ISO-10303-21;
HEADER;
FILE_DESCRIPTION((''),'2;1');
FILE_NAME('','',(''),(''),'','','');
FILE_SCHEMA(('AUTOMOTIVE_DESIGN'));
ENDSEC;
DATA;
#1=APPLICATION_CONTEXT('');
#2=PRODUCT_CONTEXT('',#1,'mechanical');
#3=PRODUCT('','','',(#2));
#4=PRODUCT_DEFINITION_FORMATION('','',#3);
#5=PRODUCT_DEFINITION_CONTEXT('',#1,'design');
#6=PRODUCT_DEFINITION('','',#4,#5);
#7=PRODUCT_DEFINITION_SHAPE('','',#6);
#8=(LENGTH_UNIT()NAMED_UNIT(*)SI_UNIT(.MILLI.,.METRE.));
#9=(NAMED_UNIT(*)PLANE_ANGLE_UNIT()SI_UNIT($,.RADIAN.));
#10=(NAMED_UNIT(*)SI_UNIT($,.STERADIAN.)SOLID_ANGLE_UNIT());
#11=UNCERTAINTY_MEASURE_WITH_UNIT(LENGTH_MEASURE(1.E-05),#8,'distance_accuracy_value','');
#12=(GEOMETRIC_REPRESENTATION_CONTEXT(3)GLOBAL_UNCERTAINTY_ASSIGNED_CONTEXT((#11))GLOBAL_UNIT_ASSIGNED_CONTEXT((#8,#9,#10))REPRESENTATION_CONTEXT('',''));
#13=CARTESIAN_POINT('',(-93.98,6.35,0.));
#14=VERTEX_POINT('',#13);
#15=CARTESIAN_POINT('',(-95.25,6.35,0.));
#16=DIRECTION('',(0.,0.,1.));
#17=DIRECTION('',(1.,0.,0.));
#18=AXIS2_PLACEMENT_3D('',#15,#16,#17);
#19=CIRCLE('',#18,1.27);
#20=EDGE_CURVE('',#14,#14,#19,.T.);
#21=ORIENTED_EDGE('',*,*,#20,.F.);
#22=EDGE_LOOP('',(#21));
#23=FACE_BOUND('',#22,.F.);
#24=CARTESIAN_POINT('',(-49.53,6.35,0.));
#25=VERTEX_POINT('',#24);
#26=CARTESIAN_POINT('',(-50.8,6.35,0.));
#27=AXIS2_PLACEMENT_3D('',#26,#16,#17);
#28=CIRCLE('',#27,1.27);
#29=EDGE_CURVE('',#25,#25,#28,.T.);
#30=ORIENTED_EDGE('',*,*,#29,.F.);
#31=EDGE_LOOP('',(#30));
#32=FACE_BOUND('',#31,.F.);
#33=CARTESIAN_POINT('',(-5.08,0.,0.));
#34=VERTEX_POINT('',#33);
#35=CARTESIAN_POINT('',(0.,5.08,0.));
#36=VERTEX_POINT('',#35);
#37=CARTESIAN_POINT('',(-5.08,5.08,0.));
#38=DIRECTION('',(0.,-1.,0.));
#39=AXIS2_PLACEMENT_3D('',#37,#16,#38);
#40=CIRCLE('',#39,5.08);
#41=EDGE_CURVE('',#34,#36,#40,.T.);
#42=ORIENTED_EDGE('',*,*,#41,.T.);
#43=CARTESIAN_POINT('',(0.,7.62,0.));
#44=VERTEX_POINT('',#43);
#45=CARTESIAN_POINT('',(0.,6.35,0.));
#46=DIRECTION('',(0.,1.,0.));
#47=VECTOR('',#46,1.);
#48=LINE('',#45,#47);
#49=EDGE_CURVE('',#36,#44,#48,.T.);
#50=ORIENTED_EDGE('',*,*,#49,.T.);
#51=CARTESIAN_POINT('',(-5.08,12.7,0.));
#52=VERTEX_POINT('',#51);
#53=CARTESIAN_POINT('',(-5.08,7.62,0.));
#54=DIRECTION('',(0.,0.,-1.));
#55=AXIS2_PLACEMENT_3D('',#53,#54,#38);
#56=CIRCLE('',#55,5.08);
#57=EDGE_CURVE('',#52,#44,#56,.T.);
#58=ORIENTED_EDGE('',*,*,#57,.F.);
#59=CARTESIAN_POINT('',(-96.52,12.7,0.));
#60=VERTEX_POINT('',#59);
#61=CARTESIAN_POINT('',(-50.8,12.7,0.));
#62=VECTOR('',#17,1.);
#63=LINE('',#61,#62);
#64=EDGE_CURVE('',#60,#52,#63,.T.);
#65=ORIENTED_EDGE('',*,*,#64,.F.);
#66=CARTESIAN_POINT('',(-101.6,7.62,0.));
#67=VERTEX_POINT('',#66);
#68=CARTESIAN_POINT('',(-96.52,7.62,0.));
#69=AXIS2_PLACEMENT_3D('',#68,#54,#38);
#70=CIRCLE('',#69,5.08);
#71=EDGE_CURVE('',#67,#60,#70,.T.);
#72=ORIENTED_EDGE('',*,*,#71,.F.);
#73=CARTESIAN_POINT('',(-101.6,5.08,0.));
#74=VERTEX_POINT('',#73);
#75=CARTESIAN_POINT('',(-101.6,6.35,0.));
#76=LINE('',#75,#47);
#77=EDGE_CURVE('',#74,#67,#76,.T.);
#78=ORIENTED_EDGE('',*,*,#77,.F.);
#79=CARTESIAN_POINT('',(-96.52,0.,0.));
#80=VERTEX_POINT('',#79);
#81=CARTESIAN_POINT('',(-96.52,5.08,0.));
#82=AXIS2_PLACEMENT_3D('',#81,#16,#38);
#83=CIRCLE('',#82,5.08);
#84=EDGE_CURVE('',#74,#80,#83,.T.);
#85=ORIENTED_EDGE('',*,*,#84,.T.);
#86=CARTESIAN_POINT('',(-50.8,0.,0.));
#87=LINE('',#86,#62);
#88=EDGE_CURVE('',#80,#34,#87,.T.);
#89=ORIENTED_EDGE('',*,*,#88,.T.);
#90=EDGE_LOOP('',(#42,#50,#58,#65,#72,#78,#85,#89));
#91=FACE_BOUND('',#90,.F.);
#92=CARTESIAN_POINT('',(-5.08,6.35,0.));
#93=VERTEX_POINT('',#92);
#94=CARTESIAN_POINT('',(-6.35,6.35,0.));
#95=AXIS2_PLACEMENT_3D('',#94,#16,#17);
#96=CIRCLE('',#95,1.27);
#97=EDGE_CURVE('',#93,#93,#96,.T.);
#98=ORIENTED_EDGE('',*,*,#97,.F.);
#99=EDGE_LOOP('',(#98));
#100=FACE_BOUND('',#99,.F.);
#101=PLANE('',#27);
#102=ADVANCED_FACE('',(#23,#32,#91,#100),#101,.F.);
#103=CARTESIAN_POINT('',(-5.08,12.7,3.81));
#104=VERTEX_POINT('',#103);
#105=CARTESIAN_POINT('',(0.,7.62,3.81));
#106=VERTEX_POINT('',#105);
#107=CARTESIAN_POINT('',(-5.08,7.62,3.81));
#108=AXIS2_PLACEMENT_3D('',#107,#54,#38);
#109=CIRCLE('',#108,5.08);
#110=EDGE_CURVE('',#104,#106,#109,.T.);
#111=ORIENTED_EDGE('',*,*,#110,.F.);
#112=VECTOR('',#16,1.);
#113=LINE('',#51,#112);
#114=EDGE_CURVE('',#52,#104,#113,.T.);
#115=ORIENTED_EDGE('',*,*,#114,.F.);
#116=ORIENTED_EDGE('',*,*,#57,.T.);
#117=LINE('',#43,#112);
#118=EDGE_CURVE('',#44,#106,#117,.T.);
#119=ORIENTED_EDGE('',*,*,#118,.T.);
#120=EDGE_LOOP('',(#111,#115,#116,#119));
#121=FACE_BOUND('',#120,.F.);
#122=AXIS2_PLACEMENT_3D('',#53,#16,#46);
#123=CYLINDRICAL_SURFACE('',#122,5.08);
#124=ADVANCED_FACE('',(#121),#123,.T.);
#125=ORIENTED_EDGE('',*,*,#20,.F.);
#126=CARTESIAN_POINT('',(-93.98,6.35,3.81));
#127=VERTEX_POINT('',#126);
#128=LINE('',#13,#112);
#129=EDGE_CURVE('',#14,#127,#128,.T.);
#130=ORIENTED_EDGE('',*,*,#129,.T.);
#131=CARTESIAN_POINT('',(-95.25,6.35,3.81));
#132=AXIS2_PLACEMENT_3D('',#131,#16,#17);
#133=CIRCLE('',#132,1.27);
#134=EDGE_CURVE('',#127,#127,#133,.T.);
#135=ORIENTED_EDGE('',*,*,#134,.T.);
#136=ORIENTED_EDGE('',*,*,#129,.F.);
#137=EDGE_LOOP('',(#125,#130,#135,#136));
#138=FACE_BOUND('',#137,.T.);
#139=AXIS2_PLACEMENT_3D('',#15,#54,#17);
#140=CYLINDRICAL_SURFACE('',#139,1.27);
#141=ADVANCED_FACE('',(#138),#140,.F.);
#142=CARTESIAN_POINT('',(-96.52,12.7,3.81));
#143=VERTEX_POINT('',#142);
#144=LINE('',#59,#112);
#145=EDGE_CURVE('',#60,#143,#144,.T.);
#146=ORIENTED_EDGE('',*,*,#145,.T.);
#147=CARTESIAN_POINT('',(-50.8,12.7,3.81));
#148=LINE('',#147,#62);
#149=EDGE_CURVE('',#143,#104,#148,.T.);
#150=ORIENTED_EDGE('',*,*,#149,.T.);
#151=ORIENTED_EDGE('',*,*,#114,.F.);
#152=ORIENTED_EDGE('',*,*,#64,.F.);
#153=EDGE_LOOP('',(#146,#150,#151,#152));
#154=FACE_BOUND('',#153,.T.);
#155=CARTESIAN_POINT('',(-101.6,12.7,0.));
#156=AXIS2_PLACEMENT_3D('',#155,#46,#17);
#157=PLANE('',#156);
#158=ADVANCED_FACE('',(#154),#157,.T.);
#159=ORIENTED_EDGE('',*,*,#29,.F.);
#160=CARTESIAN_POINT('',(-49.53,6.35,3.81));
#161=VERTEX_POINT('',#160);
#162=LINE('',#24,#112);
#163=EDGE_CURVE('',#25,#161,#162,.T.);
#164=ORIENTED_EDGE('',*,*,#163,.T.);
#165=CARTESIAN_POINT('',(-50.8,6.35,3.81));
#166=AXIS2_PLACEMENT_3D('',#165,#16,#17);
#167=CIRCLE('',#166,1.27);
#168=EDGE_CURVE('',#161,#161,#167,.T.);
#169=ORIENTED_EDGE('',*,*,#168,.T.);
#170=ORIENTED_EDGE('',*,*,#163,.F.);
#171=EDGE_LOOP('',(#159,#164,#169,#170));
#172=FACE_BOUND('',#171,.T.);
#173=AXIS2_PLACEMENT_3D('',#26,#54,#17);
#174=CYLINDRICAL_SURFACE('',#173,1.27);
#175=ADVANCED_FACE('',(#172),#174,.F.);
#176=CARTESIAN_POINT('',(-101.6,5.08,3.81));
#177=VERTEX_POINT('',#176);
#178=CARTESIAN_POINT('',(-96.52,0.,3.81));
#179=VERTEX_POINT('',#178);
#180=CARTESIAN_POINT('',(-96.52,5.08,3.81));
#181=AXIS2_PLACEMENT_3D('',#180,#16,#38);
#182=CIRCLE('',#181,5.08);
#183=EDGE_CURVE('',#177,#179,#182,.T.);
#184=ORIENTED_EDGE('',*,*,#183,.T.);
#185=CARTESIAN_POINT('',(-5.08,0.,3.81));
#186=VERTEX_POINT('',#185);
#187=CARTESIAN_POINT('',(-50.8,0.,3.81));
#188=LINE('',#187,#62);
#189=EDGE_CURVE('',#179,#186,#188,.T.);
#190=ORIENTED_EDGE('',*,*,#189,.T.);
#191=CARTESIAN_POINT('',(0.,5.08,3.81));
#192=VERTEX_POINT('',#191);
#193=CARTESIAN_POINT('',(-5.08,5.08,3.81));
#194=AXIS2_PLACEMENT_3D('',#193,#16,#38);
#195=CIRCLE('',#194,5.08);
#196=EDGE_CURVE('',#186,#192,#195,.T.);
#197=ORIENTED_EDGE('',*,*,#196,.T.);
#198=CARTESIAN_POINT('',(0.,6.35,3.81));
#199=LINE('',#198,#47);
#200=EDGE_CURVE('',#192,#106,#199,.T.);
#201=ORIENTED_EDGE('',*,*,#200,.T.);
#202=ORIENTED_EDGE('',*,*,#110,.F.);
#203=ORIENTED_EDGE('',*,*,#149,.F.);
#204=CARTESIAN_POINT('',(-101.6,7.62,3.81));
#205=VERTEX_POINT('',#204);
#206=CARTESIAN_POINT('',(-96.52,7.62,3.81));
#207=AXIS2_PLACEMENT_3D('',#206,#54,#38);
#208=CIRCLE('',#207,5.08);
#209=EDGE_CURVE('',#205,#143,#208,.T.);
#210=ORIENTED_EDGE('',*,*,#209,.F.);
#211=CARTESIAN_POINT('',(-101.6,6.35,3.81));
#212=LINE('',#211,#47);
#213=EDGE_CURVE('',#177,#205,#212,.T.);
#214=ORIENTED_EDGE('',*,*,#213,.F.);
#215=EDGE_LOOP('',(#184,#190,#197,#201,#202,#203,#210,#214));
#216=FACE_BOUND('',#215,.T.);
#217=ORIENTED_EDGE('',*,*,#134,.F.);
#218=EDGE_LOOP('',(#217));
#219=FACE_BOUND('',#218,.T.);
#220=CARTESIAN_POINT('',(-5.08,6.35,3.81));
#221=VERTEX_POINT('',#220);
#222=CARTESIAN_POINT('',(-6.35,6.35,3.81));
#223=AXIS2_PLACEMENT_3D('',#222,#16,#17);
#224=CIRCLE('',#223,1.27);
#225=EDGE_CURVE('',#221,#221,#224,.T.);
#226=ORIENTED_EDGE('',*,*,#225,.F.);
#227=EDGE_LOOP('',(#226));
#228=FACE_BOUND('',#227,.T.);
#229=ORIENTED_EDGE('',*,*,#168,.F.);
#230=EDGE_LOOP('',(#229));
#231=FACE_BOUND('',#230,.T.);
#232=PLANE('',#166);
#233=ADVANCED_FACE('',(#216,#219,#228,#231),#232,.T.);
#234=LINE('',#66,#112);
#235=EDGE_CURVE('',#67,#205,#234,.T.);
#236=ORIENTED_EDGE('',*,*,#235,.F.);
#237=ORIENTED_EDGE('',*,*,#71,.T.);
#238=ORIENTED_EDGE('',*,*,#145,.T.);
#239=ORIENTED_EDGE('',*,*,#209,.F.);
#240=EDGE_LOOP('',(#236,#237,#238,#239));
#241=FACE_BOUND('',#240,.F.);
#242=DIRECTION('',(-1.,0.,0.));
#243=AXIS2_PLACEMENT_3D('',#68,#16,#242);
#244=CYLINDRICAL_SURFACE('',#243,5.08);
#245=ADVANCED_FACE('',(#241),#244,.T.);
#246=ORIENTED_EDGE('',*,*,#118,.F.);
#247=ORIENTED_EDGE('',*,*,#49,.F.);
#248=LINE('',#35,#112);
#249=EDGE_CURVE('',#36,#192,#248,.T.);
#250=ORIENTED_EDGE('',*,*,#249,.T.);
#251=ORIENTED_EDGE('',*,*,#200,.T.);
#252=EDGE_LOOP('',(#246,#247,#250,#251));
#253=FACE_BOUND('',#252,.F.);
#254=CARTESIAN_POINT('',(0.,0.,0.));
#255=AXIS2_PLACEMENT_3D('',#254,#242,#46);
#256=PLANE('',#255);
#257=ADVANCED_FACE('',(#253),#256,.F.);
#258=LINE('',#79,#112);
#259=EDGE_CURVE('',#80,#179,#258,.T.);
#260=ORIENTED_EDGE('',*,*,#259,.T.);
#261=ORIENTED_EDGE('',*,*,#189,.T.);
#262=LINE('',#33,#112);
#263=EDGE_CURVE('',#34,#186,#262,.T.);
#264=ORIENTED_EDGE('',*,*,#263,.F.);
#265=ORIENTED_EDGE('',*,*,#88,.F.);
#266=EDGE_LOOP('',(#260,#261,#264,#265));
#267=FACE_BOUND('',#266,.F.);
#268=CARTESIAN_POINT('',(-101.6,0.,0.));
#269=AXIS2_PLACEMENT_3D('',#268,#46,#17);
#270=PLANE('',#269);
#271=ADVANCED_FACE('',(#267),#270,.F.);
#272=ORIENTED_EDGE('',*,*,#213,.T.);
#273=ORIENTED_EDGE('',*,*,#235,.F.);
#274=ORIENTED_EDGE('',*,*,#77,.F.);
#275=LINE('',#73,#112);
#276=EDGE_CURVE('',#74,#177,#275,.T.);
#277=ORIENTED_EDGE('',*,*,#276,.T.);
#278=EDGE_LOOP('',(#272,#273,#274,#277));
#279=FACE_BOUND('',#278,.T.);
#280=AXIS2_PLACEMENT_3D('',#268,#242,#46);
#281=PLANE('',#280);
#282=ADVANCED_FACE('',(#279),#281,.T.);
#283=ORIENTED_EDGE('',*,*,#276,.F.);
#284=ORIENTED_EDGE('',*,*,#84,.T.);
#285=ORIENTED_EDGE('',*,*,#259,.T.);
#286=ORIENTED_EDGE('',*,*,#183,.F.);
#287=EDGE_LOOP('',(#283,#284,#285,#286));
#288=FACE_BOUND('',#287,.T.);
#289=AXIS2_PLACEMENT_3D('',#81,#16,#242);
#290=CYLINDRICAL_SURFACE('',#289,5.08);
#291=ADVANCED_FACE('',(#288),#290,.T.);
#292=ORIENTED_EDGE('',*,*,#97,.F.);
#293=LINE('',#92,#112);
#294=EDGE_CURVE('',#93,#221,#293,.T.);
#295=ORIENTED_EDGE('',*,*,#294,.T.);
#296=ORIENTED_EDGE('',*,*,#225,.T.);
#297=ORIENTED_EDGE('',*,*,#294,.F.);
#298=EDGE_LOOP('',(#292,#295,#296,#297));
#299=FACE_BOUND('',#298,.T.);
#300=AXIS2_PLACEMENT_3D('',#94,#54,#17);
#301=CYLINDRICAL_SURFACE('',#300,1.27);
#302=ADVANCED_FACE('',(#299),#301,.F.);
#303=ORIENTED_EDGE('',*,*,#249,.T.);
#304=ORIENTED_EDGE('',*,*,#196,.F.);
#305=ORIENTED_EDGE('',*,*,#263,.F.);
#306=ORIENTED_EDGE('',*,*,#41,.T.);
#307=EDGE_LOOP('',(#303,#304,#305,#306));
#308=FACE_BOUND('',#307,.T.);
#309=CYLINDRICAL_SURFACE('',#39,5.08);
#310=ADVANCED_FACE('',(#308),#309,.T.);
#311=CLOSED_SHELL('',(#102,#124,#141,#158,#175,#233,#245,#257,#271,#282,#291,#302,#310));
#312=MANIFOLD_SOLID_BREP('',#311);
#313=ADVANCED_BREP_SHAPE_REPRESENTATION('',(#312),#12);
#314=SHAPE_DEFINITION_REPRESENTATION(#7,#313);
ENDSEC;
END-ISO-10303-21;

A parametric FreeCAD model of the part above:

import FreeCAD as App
import Part
import Sketcher

V = App.Vector
Q = App.Units.Quantity


def edges_at(feature, points):
    """Names of the edges that pass closest to the given points."""
    edges = feature.Shape.Edges
    near = lambda p: min(range(len(edges)), key=lambda i: edges[i].distToShape(Part.Vertex(*p))[0])
    return sorted({f"Edge{near(p) + 1}" for p in points})

doc = App.newDocument("Part")
body = doc.addObject("PartDesign::Body", "Body")

sketch1 = doc.addObject("Sketcher::SketchObject", "Sketch")
body.addObject(sketch1)
sketch1.AttachmentSupport = (doc.XY_Plane, [""])
sketch1.MapMode = "FlatFace"
sketch1.addGeometry([
    Part.LineSegment(V(-101.6, 12.7, 0), V(-101.6, 0, 0)),
    Part.LineSegment(V(-101.6, 0, 0), V(0, 0, 0)),
    Part.LineSegment(V(0, 0, 0), V(0, 12.7, 0)),
    Part.LineSegment(V(0, 12.7, 0), V(-101.6, 12.7, 0)),
    Part.Circle(V(-95.2, 6.3, 0), V(0, 0, 1), 1.3),
    Part.Circle(V(-50.8, 6.3, 0), V(0, 0, 1), 1.3),
    Part.Circle(V(-6.3, 6.3, 0), V(0, 0, 1), 1.3),
], False)
sketch1.addConstraint([
    Sketcher.Constraint("Coincident", 0, 2, 1, 1),
    Sketcher.Constraint("Coincident", 1, 2, 2, 1),
    Sketcher.Constraint("Coincident", 2, 2, 3, 1),
    Sketcher.Constraint("Coincident", 3, 2, 0, 1),
    Sketcher.Constraint("Vertical", 0),
    Sketcher.Constraint("Horizontal", 1),
    Sketcher.Constraint("Vertical", 2),
    Sketcher.Constraint("Horizontal", 3),
    Sketcher.Constraint("Coincident", 1, 2, -1, 1),
    Sketcher.Constraint("Equal", 4, 5),
    Sketcher.Constraint("Equal", 5, 6),
    Sketcher.Constraint("Horizontal", 4, 3, 5, 3),
    Sketcher.Constraint("Horizontal", 5, 3, 6, 3),
    Sketcher.Constraint("Diameter", 4, Q("0.1 in")),
    Sketcher.Constraint("DistanceX", 1, 1, 1, 2, Q("4 in")),
    Sketcher.Constraint("DistanceY", 0, 2, 0, 1, Q("0.5 in")),
    Sketcher.Constraint("DistanceX", 5, 3, -1, 1, Q("2 in")),
    Sketcher.Constraint("DistanceX", 4, 3, 6, 3, Q("3.5 in")),
    Sketcher.Constraint("DistanceX", 4, 3, -1, 1, Q("3.75 in")),
    Sketcher.Constraint("DistanceY", -1, 1, 4, 3, Q("0.25 in")),
])
pad1 = doc.addObject("PartDesign::Pad", "Pad")
body.addObject(pad1)
pad1.Profile = sketch1
pad1.Length = Q("0.15 in")
doc.recompute()

fillet = doc.addObject("PartDesign::Fillet", "Fillet")
body.addObject(fillet)
fillet.Base = (pad1, edges_at(pad1, [
    (0, 0, 1.905),
    (0, 12.7, 1.905),
    (-101.6, 12.7, 1.905),
    (-101.6, 0, 1.905),
]))
fillet.Radius = Q("0.2 in")

doc.recompute()
